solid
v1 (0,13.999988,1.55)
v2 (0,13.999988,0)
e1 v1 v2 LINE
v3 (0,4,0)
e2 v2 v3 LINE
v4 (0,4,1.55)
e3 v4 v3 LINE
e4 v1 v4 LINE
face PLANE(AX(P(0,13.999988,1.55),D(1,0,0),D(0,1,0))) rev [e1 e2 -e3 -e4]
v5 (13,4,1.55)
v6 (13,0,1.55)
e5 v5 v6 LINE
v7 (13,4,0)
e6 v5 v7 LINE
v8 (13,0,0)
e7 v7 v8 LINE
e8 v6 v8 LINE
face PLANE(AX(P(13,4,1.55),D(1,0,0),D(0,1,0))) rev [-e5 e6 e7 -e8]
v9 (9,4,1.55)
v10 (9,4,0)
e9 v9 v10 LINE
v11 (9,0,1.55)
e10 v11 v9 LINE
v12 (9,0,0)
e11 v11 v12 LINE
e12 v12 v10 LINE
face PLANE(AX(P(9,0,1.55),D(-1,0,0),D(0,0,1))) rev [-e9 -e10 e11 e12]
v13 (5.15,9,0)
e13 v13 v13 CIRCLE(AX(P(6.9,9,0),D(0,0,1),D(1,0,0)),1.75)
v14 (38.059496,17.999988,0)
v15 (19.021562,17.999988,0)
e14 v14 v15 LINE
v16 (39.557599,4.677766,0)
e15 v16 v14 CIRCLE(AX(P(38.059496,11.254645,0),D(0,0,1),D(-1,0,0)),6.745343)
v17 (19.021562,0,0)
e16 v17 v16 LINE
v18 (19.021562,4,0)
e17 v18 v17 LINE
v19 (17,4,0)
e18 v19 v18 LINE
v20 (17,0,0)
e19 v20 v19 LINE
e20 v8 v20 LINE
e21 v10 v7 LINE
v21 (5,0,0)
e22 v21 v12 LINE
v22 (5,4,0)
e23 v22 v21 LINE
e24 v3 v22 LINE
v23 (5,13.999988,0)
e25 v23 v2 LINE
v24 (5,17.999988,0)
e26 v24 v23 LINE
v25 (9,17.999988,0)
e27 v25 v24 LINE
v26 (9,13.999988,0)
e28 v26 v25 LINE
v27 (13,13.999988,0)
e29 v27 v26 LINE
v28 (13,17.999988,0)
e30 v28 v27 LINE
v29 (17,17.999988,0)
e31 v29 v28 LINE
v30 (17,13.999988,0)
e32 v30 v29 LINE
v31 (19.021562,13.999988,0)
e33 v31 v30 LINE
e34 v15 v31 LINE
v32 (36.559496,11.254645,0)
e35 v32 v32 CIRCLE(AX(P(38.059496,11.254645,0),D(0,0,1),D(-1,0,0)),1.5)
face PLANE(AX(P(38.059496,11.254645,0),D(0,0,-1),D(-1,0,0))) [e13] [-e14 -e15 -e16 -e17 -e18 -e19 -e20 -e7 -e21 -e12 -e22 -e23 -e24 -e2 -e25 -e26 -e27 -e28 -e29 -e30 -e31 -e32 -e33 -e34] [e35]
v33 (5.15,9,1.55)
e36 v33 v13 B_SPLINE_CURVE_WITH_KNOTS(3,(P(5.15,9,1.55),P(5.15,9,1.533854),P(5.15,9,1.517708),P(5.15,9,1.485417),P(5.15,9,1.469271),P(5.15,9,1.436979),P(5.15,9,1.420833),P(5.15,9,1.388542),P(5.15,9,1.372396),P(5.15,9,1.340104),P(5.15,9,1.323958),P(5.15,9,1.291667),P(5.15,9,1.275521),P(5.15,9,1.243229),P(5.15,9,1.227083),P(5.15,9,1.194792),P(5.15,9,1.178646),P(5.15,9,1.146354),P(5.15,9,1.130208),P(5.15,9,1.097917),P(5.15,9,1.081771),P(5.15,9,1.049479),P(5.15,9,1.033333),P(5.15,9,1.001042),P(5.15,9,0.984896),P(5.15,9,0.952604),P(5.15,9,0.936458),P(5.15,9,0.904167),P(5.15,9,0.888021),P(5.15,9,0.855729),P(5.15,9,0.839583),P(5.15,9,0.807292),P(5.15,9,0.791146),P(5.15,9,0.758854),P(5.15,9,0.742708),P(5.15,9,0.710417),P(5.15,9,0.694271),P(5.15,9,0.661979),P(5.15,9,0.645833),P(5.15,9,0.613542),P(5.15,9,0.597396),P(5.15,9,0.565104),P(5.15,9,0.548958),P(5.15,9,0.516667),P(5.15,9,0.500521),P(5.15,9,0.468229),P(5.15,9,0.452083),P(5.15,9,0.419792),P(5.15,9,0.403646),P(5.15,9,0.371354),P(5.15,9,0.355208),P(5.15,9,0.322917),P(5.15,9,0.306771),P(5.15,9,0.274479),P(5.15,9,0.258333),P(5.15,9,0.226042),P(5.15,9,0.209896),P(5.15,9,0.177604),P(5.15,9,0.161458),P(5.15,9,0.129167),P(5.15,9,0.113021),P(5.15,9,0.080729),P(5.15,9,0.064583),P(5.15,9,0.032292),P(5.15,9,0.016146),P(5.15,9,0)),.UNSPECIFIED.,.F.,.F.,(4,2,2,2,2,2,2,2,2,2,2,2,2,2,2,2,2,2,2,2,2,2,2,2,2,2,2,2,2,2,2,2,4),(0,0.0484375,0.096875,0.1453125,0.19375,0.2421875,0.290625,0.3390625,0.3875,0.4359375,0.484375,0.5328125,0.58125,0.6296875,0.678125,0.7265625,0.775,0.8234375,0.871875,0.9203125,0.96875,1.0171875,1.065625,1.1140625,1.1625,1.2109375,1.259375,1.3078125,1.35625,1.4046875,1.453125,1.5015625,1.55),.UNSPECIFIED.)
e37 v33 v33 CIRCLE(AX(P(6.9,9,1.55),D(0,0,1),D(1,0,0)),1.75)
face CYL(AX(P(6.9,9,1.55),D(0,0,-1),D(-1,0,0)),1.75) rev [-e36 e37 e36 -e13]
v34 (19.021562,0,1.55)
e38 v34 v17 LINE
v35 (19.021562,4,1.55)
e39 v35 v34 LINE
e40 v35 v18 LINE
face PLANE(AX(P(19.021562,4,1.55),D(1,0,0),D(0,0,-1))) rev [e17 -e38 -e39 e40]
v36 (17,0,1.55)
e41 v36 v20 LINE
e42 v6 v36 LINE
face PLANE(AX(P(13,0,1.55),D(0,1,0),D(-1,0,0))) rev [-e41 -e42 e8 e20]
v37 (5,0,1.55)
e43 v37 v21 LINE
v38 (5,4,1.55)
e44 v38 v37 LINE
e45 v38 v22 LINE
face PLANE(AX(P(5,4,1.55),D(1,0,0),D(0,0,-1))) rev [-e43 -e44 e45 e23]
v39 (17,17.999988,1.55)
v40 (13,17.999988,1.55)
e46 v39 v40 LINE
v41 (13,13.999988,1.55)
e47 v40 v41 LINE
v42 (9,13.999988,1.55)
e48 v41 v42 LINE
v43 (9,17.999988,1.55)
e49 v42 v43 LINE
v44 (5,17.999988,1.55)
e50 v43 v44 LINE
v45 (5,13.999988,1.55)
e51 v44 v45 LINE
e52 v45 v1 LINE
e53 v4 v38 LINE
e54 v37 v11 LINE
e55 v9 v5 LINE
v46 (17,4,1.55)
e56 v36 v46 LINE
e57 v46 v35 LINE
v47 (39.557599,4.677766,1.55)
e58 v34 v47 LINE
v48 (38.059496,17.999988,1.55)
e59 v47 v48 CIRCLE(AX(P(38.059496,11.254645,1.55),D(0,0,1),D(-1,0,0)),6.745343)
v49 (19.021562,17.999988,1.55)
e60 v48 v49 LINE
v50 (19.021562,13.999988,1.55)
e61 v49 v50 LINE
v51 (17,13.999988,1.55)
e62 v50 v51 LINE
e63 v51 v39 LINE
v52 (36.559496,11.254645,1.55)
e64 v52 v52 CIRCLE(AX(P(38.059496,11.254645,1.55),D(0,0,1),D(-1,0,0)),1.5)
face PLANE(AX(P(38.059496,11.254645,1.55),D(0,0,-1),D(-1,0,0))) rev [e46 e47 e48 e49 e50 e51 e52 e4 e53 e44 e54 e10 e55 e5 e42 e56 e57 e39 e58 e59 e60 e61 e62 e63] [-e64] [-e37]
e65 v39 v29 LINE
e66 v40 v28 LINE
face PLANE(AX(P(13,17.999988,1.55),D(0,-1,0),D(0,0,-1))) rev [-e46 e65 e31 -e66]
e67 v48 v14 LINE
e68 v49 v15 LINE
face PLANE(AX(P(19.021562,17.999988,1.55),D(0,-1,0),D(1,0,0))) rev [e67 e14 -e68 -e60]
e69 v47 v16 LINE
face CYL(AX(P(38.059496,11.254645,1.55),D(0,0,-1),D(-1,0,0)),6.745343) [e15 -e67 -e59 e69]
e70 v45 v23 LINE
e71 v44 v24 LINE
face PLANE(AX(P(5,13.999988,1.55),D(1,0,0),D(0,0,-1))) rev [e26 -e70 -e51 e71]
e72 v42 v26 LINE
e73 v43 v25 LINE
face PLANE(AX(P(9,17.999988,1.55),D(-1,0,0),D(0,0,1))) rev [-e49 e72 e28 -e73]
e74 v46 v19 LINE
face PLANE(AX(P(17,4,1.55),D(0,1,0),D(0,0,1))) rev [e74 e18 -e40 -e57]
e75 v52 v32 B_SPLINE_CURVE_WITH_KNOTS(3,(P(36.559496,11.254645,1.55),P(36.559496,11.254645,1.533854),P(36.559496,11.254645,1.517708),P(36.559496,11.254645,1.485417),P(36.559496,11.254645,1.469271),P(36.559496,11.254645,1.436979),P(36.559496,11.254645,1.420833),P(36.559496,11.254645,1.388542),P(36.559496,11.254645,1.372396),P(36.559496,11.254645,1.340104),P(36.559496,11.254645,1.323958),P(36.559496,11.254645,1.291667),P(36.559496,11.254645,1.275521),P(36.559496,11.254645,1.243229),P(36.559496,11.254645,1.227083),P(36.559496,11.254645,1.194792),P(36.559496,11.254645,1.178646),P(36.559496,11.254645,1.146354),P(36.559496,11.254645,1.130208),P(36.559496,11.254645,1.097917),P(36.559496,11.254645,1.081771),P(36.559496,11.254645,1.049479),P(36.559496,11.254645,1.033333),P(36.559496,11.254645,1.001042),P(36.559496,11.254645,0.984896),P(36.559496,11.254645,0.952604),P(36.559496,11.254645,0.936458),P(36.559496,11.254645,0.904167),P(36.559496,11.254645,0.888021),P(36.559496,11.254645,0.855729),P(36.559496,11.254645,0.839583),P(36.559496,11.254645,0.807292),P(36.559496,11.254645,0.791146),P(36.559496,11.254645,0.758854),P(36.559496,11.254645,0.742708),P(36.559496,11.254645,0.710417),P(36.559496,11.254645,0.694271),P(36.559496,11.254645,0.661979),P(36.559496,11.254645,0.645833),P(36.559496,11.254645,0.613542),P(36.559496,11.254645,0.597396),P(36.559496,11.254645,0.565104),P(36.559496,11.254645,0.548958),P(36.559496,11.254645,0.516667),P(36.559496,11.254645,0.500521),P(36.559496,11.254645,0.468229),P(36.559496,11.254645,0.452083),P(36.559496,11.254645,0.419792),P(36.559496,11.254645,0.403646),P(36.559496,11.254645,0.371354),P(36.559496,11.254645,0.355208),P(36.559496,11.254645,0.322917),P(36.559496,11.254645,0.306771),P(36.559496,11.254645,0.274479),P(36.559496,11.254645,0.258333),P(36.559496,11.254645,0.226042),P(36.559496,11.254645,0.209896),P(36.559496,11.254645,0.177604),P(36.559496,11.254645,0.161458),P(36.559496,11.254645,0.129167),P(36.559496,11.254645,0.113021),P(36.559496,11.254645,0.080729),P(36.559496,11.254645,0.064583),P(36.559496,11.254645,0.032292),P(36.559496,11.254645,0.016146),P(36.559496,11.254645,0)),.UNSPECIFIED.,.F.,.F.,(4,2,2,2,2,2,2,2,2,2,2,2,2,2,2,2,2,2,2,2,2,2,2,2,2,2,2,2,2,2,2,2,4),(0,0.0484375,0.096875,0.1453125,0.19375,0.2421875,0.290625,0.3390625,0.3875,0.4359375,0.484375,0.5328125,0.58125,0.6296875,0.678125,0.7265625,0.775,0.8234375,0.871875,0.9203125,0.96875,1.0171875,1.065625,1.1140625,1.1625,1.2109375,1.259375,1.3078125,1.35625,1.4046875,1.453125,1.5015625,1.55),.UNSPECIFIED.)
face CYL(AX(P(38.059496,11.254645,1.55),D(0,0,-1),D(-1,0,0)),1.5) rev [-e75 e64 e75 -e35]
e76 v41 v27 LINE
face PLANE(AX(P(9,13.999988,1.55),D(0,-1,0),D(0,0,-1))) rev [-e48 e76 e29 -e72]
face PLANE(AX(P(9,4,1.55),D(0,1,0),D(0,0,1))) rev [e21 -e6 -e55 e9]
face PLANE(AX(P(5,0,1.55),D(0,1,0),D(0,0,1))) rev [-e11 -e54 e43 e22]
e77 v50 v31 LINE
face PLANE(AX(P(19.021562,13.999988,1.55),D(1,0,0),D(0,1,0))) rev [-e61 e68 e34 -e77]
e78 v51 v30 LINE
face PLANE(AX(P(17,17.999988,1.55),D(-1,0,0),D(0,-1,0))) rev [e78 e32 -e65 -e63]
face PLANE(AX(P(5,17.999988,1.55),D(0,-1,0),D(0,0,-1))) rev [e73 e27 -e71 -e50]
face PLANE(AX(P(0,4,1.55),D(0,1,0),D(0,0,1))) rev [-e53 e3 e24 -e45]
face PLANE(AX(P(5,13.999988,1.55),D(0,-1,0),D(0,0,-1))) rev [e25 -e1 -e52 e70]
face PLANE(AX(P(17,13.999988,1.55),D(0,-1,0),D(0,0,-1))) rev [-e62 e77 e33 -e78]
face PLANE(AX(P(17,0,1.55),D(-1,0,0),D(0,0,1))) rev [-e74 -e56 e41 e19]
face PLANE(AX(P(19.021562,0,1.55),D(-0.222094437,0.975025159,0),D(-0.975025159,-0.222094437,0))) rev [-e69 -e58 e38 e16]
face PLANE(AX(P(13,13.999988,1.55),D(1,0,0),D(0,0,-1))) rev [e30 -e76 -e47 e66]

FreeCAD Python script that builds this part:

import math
import FreeCAD as App
import Part
import Sketcher

doc = App.newDocument("Part")
body = doc.addObject("PartDesign::Body", "Body")

# Sketch on XY plane
sketch1 = body.newObject("Sketcher::SketchObject", "Sketch")
sketch1.AttachmentSupport = (doc.getObject("XY_Plane"), [""])
sketch1.MapMode = "FlatFace"
sketch1.addGeometry([
    Part.LineSegment(App.Vector(5, 0, 0), App.Vector(9, 0, 0)),  # 0
    Part.LineSegment(App.Vector(9, 0, 0), App.Vector(9, 4, 0)),  # 1
    Part.LineSegment(App.Vector(9, 4, 0), App.Vector(13, 4, 0)),  # 2
    Part.LineSegment(App.Vector(13, 4, 0), App.Vector(13, 0, 0)),  # 3
    Part.LineSegment(App.Vector(13, 0, 0), App.Vector(17, 0, 0)),  # 4
    Part.LineSegment(App.Vector(17, 0, 0), App.Vector(17, 4, 0)),  # 5
    Part.LineSegment(App.Vector(17, 4, 0), App.Vector(19, 4, 0)),  # 6
    Part.LineSegment(App.Vector(19, 4, 0), App.Vector(19, 0, 0)),  # 7
    Part.LineSegment(App.Vector(19, 0, 0), App.Vector(39.6, 4.7, 0)),  # 8
    Part.ArcOfCircle(Part.Circle(App.Vector(38.1, 11.3, 0), App.Vector(0, 0, 1), 6.7), math.radians(-77), math.radians(90)),  # 9
    Part.LineSegment(App.Vector(38.1, 18, 0), App.Vector(19, 18, 0)),  # 10
    Part.LineSegment(App.Vector(19, 18, 0), App.Vector(19, 14, 0)),  # 11
    Part.LineSegment(App.Vector(19, 14, 0), App.Vector(17, 14, 0)),  # 12
    Part.LineSegment(App.Vector(17, 14, 0), App.Vector(17, 18, 0)),  # 13
    Part.LineSegment(App.Vector(17, 18, 0), App.Vector(13, 18, 0)),  # 14
    Part.LineSegment(App.Vector(13, 18, 0), App.Vector(13, 14, 0)),  # 15
    Part.LineSegment(App.Vector(13, 14, 0), App.Vector(9, 14, 0)),  # 16
    Part.LineSegment(App.Vector(9, 14, 0), App.Vector(9, 18, 0)),  # 17
    Part.LineSegment(App.Vector(9, 18, 0), App.Vector(5, 18, 0)),  # 18
    Part.LineSegment(App.Vector(5, 18, 0), App.Vector(5, 14, 0)),  # 19
    Part.LineSegment(App.Vector(5, 14, 0), App.Vector(0, 14, 0)),  # 20
    Part.LineSegment(App.Vector(0, 14, 0), App.Vector(0, 4, 0)),  # 21
    Part.LineSegment(App.Vector(0, 4, 0), App.Vector(5, 4, 0)),  # 22
    Part.LineSegment(App.Vector(5, 4, 0), App.Vector(5, 0, 0)),  # 23
    Part.Circle(App.Vector(6.9, 9, 0), App.Vector(0, 0, 1), 1.8),  # 24
    Part.Circle(App.Vector(38.1, 11.3, 0), App.Vector(0, 0, 1), 1.5),  # 25
], False)
sketch1.addConstraint([
    Sketcher.Constraint("Coincident", 0, 2, 1, 1),
    Sketcher.Constraint("Coincident", 1, 2, 2, 1),
    Sketcher.Constraint("Coincident", 2, 2, 3, 1),
    Sketcher.Constraint("Coincident", 3, 2, 4, 1),
    Sketcher.Constraint("Coincident", 4, 2, 5, 1),
    Sketcher.Constraint("Coincident", 5, 2, 6, 1),
    Sketcher.Constraint("Coincident", 6, 2, 7, 1),
    Sketcher.Constraint("Coincident", 7, 2, 8, 1),
    Sketcher.Constraint("Tangent", 8, 2, 9, 1),
    Sketcher.Constraint("Tangent", 9, 2, 10, 1),
    Sketcher.Constraint("Coincident", 10, 2, 11, 1),
    Sketcher.Constraint("Coincident", 11, 2, 12, 1),
    Sketcher.Constraint("Coincident", 12, 2, 13, 1),
    Sketcher.Constraint("Coincident", 13, 2, 14, 1),
    Sketcher.Constraint("Coincident", 14, 2, 15, 1),
    Sketcher.Constraint("Coincident", 15, 2, 16, 1),
    Sketcher.Constraint("Coincident", 16, 2, 17, 1),
    Sketcher.Constraint("Coincident", 17, 2, 18, 1),
    Sketcher.Constraint("Coincident", 18, 2, 19, 1),
    Sketcher.Constraint("Coincident", 19, 2, 20, 1),
    Sketcher.Constraint("Coincident", 20, 2, 21, 1),
    Sketcher.Constraint("Coincident", 21, 2, 22, 1),
    Sketcher.Constraint("Coincident", 22, 2, 23, 1),
    Sketcher.Constraint("Coincident", 23, 2, 0, 1),
    Sketcher.Constraint("Horizontal", 0),
    Sketcher.Constraint("Vertical", 1),
    Sketcher.Constraint("Horizontal", 2),
    Sketcher.Constraint("Vertical", 3),
    Sketcher.Constraint("Horizontal", 4),
    Sketcher.Constraint("Vertical", 5),
    Sketcher.Constraint("Horizontal", 6),
    Sketcher.Constraint("Vertical", 7),
    Sketcher.Constraint("Horizontal", 10),
    Sketcher.Constraint("Vertical", 11),
    Sketcher.Constraint("Horizontal", 12),
    Sketcher.Constraint("Vertical", 13),
    Sketcher.Constraint("Horizontal", 14),
    Sketcher.Constraint("Vertical", 15),
    Sketcher.Constraint("Horizontal", 16),
    Sketcher.Constraint("Vertical", 17),
    Sketcher.Constraint("Horizontal", 18),
    Sketcher.Constraint("Vertical", 19),
    Sketcher.Constraint("Horizontal", 20),
    Sketcher.Constraint("Vertical", 21),
    Sketcher.Constraint("Horizontal", 22),
    Sketcher.Constraint("Vertical", 23),
    Sketcher.Constraint("Coincident", 25, 3, 9, 3),
    Sketcher.Constraint("PointOnObject", 0, 2, -1),
    Sketcher.Constraint("PointOnObject", 3, 2, -1),
    Sketcher.Constraint("PointOnObject", 7, 2, -1),
    Sketcher.Constraint("PointOnObject", 20, 2, -2),
    Sketcher.Constraint("Horizontal", 2, 2, 5, 2),
    Sketcher.Constraint("Horizontal", 10, 2, 13, 2),
    Sketcher.Constraint("Horizontal", 12, 2, 15, 2),
    Sketcher.Constraint("Horizontal", 14, 2, 17, 2),
    Sketcher.Constraint("Horizontal", 16, 2, 19, 2),
    Sketcher.Constraint("Horizontal", 6, 2, 21, 2),
    Sketcher.Constraint("Vertical", 7, 2, 10, 2),
    Sketcher.Constraint("Vertical", 5, 2, 12, 2),
    Sketcher.Constraint("Vertical", 3, 2, 14, 2),
    Sketcher.Constraint("Vertical", 1, 2, 16, 2),
    Sketcher.Constraint("Vertical", 19, 2, 22, 2),
    Sketcher.Constraint("Equal", 0, 2),
    Sketcher.Constraint("Equal", 2, 4),
    Sketcher.Constraint("Equal", 18, 1),
    Sketcher.Constraint("Equal", 7, 11),
    Sketcher.Constraint("Diameter", 25, 3.0),
    Sketcher.Constraint("Diameter", 24, 3.5),
    Sketcher.Constraint("DistanceX", 0, 1, 0, 2, 4.0),
    Sketcher.Constraint("DistanceX", 20, 2, 20, 1, 5.0),
    Sketcher.Constraint("DistanceY", -1, 1, 24, 3, 9.0),
    Sketcher.Constraint("DistanceX", -1, 1, 24, 3, 6.9),
    Sketcher.Constraint("Radius", 9, 6.745343),
    Sketcher.Constraint("DistanceX", 6, 1, 6, 2, 2.021562),
    Sketcher.Constraint("DistanceY", 21, 2, 21, 1, 9.999988),
    Sketcher.Constraint("DistanceX", -1, 1, 8, 2, 39.557599),
])
pad1 = body.newObject("PartDesign::Pad", "Pad")
pad1.Profile = sketch1
pad1.Length = 1.55

doc.recompute()
